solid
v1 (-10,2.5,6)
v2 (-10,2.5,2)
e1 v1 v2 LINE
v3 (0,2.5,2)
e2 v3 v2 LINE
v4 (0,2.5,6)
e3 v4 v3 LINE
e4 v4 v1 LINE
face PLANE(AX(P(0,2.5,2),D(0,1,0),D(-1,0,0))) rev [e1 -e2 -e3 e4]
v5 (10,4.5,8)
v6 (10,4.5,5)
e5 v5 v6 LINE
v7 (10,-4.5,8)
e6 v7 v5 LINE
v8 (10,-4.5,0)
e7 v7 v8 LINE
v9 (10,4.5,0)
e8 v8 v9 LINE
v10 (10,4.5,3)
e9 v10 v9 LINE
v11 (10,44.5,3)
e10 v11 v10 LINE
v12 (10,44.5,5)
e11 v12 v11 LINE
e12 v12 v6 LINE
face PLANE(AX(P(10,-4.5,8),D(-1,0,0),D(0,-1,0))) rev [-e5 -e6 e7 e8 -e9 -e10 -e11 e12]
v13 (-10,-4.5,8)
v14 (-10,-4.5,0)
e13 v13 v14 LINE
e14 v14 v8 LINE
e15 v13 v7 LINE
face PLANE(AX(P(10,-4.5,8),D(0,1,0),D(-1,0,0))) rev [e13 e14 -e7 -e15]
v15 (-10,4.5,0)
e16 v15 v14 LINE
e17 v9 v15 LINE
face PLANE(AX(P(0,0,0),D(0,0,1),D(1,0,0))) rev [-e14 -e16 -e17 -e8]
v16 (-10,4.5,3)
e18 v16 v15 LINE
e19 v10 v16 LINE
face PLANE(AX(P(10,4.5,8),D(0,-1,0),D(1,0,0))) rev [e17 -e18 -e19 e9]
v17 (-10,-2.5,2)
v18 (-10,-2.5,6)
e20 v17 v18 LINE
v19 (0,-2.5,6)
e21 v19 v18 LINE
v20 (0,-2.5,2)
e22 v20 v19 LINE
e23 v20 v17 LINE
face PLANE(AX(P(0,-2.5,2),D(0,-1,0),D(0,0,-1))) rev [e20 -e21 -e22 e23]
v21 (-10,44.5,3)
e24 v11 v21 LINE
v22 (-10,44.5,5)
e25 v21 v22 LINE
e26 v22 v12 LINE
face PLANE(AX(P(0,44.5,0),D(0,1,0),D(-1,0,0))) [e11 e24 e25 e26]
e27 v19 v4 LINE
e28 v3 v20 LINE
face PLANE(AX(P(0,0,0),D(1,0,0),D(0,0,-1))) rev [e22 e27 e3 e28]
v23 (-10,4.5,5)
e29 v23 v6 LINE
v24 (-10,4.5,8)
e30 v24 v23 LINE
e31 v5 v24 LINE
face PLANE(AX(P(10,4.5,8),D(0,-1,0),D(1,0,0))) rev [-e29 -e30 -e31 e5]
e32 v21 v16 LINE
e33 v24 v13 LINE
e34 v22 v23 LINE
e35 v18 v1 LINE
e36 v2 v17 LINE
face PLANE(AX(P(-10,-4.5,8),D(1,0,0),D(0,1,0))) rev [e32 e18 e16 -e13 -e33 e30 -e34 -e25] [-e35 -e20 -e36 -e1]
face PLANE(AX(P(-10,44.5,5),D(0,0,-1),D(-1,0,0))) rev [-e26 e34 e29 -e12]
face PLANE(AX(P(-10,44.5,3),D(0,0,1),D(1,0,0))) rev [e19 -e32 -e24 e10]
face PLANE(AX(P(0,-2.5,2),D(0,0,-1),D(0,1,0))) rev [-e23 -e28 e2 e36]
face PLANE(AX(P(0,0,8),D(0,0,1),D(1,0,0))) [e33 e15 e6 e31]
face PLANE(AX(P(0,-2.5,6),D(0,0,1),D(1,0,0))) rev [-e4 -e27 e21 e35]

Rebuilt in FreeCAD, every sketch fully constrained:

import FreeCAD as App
import Part
import Sketcher


def add_polygon(sketch, points):
    """Adds a closed chain of lines whose ends are joined by coincident constraints."""
    first, n = sketch.GeometryCount, len(points)
    for a, b in zip(points, points[1:] + points[:1]):
        sketch.addGeometry(Part.LineSegment(App.Vector(*a, 0), App.Vector(*b, 0)), False)
    for i in range(n):
        sketch.addConstraint(Sketcher.Constraint("Coincident", first + i, 2, first + (i + 1) % n, 1))

doc = App.newDocument("Part")
params = doc.addObject("Spreadsheet::Sheet", "Params")
for row, (alias, value) in enumerate([
    ("sketch1_width", "20 mm"),
    ("sketch1_height", "9 mm"),
    ("pad1_length", "8 mm"),
    ("sketch2_width", "5 mm"),
    ("sketch2_height", "4 mm"),
    ("pocket1_length", "10 mm"),
    ("sketch3_width", "20 mm"),
    ("sketch3_height", "2 mm"),
    ("pad2_length", "40 mm"),
], start=1):
    params.set(f"A{row}", alias)
    params.set(f"B{row}", "=" + value)
    params.setAlias(f"B{row}", alias)

body = doc.addObject("PartDesign::Body", "Body")

# Sketch on XY plane
sketch1 = body.newObject("Sketcher::SketchObject", "Sketch")
sketch1.AttachmentSupport = (doc.getObject("XY_Plane"), [""])
sketch1.MapMode = "FlatFace"
add_polygon(sketch1, [(-10, 4), (-10, -4), (10, -4), (10, 4)])  # lines 0-3
sketch1.addConstraint(Sketcher.Constraint("Vertical", 0))
sketch1.addConstraint(Sketcher.Constraint("Horizontal", 1))
sketch1.addConstraint(Sketcher.Constraint("Vertical", 2))
sketch1.addConstraint(Sketcher.Constraint("Horizontal", 3))
sketch1.addConstraint(Sketcher.Constraint("Symmetric", 0, 2, 2, 2, -1, 1))
sketch1.addConstraint(Sketcher.Constraint("DistanceX", 1, 1, 1, 2, 20.0))
sketch1.addConstraint(Sketcher.Constraint("DistanceY", 0, 2, 0, 1, 9.0))
sketch1.setExpression("Constraints[9]", "Params.sketch1_width")
sketch1.setExpression("Constraints[10]", "Params.sketch1_height")
pad1 = body.newObject("PartDesign::Pad", "Pad")
pad1.Profile = sketch1
pad1.setExpression("Length", "Params.pad1_length")

# Sketch on YZ plane
sketch2 = body.newObject("Sketcher::SketchObject", "Sketch001")
sketch2.AttachmentSupport = (doc.getObject("YZ_Plane"), [""])
sketch2.MapMode = "FlatFace"
sketch2.AttachmentOffset = App.Placement(App.Vector(0, 0, -10), App.Rotation())
add_polygon(sketch2, [(2.5, 2), (-2.5, 2), (-2.5, 6), (2.5, 6)])  # lines 0-3
sketch2.addConstraint(Sketcher.Constraint("Horizontal", 0))
sketch2.addConstraint(Sketcher.Constraint("Vertical", 1))
sketch2.addConstraint(Sketcher.Constraint("Horizontal", 2))
sketch2.addConstraint(Sketcher.Constraint("Vertical", 3))
sketch2.addConstraint(Sketcher.Constraint("DistanceX", 0, 2, 0, 1, 5.0))
sketch2.addConstraint(Sketcher.Constraint("DistanceY", 1, 1, 1, 2, 4.0))
sketch2.addConstraint(Sketcher.Constraint("DistanceY", -1, 1, 0, 2, 2.0))
sketch2.addConstraint(Sketcher.Constraint("DistanceX", 0, 2, -1, 1, 2.5))
sketch2.setExpression("Constraints[8]", "Params.sketch2_width")
sketch2.setExpression("Constraints[9]", "Params.sketch2_height")
pocket1 = body.newObject("PartDesign::Pocket", "Pocket")
pocket1.Profile = sketch2
pocket1.setExpression("Length", "Params.pocket1_length")
pocket1.Reversed = True

# Sketch on XZ plane
sketch3 = body.newObject("Sketcher::SketchObject", "Sketch002")
sketch3.AttachmentSupport = (doc.getObject("XZ_Plane"), [""])
sketch3.MapMode = "FlatFace"
sketch3.AttachmentOffset = App.Placement(App.Vector(0, 0, -4.5), App.Rotation())
add_polygon(sketch3, [(-10, 3), (-10, 5), (10, 5), (10, 3)])  # lines 0-3
sketch3.addConstraint(Sketcher.Constraint("Vertical", 0))
sketch3.addConstraint(Sketcher.Constraint("Horizontal", 1))
sketch3.addConstraint(Sketcher.Constraint("Vertical", 2))
sketch3.addConstraint(Sketcher.Constraint("Horizontal", 3))
sketch3.addConstraint(Sketcher.Constraint("DistanceX", 1, 1, 1, 2, 20.0))
sketch3.addConstraint(Sketcher.Constraint("DistanceY", 0, 1, 0, 2, 2.0))
sketch3.addConstraint(Sketcher.Constraint("DistanceX", 0, 2, -1, 1, 10.0))
sketch3.addConstraint(Sketcher.Constraint("DistanceY", -1, 1, 0, 2, 5.0))
sketch3.setExpression("Constraints[8]", "Params.sketch3_width")
sketch3.setExpression("Constraints[9]", "Params.sketch3_height")
pad2 = body.newObject("PartDesign::Pad", "Pad001")
pad2.Profile = sketch3
pad2.setExpression("Length", "Params.pad2_length")
pad2.Reversed = True

doc.recompute()
